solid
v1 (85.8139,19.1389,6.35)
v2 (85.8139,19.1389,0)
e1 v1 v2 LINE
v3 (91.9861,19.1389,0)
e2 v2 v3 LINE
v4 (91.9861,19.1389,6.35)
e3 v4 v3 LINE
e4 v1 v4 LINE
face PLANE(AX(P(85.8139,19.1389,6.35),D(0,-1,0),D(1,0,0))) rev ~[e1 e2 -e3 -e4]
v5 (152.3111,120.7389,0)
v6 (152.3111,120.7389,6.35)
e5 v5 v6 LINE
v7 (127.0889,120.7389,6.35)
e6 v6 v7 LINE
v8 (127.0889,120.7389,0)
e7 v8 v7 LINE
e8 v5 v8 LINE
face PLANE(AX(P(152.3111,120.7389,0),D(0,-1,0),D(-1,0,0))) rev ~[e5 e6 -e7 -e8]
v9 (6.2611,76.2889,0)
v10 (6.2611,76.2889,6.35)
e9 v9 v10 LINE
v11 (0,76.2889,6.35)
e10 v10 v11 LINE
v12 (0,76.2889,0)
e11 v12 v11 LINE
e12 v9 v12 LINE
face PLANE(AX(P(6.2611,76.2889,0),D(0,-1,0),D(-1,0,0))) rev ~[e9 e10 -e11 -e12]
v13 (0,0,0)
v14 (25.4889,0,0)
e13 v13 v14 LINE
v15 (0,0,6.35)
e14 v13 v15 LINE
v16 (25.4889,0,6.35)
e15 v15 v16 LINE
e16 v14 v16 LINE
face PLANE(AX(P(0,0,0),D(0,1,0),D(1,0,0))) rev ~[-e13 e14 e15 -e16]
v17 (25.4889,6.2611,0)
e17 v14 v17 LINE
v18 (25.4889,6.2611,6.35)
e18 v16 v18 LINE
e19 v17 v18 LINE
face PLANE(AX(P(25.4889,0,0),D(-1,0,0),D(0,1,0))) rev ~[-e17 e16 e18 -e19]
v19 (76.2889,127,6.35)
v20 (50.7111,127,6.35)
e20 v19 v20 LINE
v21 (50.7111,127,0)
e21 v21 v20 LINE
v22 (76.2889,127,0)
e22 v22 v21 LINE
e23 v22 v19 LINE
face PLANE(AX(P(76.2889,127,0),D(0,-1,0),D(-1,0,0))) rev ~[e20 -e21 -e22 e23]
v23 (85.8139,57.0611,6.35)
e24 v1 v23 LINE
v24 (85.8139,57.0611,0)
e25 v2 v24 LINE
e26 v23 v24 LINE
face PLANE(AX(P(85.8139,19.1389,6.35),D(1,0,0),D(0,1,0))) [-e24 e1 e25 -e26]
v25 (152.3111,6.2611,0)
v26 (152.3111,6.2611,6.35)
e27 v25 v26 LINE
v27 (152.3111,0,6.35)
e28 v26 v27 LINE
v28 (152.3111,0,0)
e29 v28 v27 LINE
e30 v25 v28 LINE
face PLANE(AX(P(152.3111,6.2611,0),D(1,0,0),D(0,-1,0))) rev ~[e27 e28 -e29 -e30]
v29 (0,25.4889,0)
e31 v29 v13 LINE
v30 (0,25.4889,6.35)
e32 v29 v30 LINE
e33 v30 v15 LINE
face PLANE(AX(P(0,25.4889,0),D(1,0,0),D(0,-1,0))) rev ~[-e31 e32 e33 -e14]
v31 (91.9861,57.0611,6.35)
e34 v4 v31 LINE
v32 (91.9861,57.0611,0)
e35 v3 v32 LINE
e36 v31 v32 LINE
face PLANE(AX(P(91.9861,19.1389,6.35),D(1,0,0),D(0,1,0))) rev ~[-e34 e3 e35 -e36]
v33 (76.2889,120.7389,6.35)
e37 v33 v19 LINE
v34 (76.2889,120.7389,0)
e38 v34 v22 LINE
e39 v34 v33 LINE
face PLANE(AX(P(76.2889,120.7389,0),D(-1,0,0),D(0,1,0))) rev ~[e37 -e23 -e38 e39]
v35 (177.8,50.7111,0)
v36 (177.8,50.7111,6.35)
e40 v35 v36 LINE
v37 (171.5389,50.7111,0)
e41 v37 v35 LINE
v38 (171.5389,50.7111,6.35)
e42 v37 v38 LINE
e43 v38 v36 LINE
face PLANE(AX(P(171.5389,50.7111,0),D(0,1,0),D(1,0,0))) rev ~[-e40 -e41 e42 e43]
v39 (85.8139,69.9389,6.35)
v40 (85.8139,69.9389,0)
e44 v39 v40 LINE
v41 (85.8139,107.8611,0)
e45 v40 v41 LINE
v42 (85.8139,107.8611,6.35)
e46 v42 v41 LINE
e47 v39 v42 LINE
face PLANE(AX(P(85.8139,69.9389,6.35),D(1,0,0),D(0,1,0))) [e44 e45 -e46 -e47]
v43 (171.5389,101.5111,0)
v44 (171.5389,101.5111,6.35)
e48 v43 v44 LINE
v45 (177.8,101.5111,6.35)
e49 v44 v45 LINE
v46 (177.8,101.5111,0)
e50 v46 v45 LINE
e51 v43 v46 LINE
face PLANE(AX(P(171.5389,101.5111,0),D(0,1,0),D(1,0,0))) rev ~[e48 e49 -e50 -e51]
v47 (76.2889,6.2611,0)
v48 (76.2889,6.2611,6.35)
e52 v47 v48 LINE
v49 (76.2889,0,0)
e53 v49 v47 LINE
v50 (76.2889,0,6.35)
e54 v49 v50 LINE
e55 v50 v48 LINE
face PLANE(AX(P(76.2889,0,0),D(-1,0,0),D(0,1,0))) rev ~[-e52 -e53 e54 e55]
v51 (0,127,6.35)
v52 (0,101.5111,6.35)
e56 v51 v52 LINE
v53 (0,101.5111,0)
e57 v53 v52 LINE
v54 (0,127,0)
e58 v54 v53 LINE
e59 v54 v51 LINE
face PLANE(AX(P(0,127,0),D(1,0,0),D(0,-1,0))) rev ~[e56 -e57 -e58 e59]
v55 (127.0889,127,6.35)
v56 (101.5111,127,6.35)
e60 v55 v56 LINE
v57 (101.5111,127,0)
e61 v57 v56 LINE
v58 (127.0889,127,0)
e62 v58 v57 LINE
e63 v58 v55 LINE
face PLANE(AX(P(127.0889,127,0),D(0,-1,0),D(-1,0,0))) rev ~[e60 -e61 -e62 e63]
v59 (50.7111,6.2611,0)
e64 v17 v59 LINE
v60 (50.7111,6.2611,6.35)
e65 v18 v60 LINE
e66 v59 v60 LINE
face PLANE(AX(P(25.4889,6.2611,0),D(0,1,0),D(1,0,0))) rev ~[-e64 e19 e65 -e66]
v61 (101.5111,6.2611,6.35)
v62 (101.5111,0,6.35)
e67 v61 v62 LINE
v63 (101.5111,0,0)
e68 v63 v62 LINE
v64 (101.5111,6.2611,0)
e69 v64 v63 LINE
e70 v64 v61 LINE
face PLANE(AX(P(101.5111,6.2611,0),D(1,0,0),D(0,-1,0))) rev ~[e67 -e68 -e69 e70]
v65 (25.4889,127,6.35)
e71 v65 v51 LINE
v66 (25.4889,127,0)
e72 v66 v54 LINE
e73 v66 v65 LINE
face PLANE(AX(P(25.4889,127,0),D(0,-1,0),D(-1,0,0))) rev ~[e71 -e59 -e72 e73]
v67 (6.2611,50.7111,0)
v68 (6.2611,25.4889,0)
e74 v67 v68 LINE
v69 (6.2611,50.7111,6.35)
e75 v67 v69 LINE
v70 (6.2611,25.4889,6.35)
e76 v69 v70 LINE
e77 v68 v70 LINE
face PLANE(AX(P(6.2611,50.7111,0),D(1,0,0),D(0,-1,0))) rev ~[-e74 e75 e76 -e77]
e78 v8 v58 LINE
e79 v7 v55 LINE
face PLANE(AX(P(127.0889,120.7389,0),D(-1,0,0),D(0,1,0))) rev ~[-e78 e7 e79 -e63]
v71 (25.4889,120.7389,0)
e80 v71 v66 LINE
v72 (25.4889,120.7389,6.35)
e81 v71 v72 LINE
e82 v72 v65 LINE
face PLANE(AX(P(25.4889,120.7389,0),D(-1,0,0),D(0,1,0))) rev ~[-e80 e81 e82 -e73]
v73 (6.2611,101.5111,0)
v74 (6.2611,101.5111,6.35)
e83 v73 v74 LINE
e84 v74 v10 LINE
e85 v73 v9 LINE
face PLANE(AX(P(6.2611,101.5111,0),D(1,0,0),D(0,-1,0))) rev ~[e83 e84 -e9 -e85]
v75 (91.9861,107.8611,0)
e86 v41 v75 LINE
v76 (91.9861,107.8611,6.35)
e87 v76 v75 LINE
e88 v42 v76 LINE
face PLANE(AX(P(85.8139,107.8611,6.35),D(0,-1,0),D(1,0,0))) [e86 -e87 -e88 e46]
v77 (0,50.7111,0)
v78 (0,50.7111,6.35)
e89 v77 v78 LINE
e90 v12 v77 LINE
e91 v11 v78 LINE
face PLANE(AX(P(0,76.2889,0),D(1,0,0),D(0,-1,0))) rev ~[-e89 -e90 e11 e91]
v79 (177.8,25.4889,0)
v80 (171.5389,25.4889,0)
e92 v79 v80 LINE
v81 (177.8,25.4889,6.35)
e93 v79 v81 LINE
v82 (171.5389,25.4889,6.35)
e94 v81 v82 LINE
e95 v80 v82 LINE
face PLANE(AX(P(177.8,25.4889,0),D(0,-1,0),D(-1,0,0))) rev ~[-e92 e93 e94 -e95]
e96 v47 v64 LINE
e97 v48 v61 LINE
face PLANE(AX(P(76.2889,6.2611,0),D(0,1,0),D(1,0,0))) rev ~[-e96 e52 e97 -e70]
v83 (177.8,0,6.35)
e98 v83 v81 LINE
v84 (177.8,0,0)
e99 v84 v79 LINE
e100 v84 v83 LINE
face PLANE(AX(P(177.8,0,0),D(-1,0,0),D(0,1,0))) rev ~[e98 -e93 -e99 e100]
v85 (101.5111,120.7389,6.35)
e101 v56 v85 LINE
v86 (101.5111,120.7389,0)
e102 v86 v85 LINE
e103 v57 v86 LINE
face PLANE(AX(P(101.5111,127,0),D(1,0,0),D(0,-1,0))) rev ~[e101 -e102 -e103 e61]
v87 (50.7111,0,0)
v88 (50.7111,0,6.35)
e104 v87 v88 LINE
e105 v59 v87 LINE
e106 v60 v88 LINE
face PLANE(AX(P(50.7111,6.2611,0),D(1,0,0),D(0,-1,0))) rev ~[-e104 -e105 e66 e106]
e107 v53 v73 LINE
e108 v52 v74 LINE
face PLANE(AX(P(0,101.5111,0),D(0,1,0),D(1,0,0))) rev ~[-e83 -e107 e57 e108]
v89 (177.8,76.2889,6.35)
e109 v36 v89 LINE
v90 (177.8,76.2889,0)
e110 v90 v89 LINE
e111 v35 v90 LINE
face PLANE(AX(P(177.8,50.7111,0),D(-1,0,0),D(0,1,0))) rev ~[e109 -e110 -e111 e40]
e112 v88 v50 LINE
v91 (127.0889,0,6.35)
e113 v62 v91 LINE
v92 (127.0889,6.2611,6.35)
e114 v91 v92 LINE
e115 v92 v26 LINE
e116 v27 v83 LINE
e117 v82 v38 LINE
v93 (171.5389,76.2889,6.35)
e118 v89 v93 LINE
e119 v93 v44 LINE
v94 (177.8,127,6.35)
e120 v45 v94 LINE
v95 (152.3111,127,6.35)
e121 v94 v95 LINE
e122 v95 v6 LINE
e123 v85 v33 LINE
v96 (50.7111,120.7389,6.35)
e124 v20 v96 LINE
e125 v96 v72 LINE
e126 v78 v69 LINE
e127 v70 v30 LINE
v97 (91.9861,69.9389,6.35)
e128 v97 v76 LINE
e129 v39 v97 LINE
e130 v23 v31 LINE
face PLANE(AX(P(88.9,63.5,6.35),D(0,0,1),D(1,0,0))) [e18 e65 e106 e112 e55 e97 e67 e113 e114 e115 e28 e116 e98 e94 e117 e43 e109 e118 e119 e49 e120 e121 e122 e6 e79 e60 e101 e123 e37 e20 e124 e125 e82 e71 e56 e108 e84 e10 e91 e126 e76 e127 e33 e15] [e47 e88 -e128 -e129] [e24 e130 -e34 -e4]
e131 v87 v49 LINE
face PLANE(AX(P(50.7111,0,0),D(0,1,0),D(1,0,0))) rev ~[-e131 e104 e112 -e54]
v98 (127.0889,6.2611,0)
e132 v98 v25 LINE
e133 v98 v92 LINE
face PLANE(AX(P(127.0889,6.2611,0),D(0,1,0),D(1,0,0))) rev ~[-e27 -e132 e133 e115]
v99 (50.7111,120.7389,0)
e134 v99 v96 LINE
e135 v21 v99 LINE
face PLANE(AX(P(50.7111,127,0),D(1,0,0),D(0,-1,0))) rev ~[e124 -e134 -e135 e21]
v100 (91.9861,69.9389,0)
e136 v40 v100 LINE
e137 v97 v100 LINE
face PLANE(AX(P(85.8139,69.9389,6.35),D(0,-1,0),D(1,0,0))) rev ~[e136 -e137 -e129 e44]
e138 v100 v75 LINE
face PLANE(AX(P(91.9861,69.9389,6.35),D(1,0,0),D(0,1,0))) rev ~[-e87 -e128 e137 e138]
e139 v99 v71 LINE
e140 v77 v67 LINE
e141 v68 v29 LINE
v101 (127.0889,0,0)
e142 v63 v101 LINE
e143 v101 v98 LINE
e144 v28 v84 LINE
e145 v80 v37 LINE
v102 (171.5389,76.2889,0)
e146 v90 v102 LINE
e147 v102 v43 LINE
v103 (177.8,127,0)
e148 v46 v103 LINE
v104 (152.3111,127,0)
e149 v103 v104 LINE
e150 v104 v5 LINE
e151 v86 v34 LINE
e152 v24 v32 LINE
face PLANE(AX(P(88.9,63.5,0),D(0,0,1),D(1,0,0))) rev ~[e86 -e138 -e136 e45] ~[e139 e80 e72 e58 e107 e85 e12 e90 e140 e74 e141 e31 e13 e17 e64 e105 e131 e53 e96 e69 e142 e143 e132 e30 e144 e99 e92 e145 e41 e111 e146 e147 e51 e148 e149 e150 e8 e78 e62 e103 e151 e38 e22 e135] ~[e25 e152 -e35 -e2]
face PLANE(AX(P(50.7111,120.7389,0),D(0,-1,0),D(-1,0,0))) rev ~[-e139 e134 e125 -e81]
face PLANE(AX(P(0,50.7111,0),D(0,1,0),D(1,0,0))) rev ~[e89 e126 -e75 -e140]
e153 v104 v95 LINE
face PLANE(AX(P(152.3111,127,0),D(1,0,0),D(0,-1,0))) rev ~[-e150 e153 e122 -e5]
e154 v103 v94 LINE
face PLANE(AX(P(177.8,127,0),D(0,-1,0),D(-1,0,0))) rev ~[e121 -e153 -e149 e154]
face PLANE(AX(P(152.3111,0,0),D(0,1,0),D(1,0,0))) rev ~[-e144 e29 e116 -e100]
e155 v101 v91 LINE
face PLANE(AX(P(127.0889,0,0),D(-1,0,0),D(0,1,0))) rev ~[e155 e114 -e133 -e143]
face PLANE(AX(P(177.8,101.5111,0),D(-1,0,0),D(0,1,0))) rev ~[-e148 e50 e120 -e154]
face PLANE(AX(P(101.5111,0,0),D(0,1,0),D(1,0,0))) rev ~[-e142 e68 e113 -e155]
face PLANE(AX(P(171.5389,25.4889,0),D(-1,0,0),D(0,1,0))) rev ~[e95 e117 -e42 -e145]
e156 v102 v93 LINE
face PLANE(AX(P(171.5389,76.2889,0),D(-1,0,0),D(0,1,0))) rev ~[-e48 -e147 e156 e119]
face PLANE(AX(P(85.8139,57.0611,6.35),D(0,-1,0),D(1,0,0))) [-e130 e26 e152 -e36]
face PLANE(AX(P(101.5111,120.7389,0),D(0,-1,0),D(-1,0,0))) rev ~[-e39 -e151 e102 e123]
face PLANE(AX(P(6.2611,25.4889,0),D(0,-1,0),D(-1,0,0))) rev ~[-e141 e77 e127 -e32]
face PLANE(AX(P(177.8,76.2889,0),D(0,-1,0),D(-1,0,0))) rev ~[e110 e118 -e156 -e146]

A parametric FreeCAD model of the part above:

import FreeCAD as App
import Part
import Sketcher
from FreeCAD import Vector
Q = App.Units.Quantity


def add_polygon(sketch, points):
    """Adds a closed chain of lines whose ends are joined by coincident constraints."""
    first, n = sketch.GeometryCount, len(points)
    for a, b in zip(points, points[1:] + points[:1]):
        sketch.addGeometry(Part.LineSegment(App.Vector(*a, 0), App.Vector(*b, 0)), False)
    for i in range(n):
        sketch.addConstraint(Sketcher.Constraint("Coincident", first + i, 2, first + (i + 1) % n, 1))

doc = App.newDocument("Part")
body = doc.addObject("PartDesign::Body", "Body")

# Sketch on XY plane
sketch1 = doc.addObject("Sketcher::SketchObject", "Sketch")
body.addObject(sketch1)
sketch1.AttachmentSupport = (doc.XY_Plane, [""])
sketch1.MapMode = "FlatFace"
add_polygon(sketch1, [(0, 25.4889), (0, 0), (25.4889, 0), (25.4889, 6.2611), (50.7111, 6.2611), (50.7111, 0), (76.2889, 0), (76.2889, 6.2611), (101.5111, 6.2611), (101.5111, 0), (127.0889, 0), (127.0889, 6.2611), (152.3111, 6.2611), (152.3111, 0), (177.8, 0), (177.8, 25.4889), (171.5389, 25.4889), (171.5389, 50.7111), (177.8, 50.7111), (177.8, 76.2889), (171.5389, 76.2889), (171.5389, 101.5111), (177.8, 101.5111), (177.8, 127), (152.3111, 127), (152.3111, 120.7389), (127.0889, 120.7389), (127.0889, 127), (101.5111, 127), (101.5111, 120.7389), (76.2889, 120.7389), (76.2889, 127), (50.7111, 127), (50.7111, 120.7389), (25.4889, 120.7389), (25.4889, 127), (0, 127), (0, 101.5111), (6.2611, 101.5111), (6.2611, 76.2889), (0, 76.2889), (0, 50.7111), (6.2611, 50.7111), (6.2611, 25.4889)])  # lines 0-43
sketch1.addConstraint([
    Sketcher.Constraint("Vertical", 0),
    Sketcher.Constraint("Horizontal", 1),
    Sketcher.Constraint("Vertical", 2),
    Sketcher.Constraint("Horizontal", 3),
    Sketcher.Constraint("Vertical", 4),
    Sketcher.Constraint("Horizontal", 5),
    Sketcher.Constraint("Vertical", 6),
    Sketcher.Constraint("Horizontal", 7),
    Sketcher.Constraint("Vertical", 8),
    Sketcher.Constraint("Horizontal", 9),
    Sketcher.Constraint("Vertical", 10),
    Sketcher.Constraint("Horizontal", 11),
    Sketcher.Constraint("Vertical", 12),
    Sketcher.Constraint("Horizontal", 13),
    Sketcher.Constraint("Vertical", 14),
    Sketcher.Constraint("Horizontal", 15),
    Sketcher.Constraint("Vertical", 16),
    Sketcher.Constraint("Horizontal", 17),
    Sketcher.Constraint("Vertical", 18),
    Sketcher.Constraint("Horizontal", 19),
    Sketcher.Constraint("Vertical", 20),
    Sketcher.Constraint("Horizontal", 21),
    Sketcher.Constraint("Vertical", 22),
    Sketcher.Constraint("Horizontal", 23),
    Sketcher.Constraint("Vertical", 24),
    Sketcher.Constraint("Horizontal", 25),
    Sketcher.Constraint("Vertical", 26),
    Sketcher.Constraint("Horizontal", 27),
    Sketcher.Constraint("Vertical", 28),
    Sketcher.Constraint("Horizontal", 29),
    Sketcher.Constraint("Vertical", 30),
    Sketcher.Constraint("Horizontal", 31),
    Sketcher.Constraint("Vertical", 32),
    Sketcher.Constraint("Horizontal", 33),
    Sketcher.Constraint("Vertical", 34),
    Sketcher.Constraint("Horizontal", 35),
    Sketcher.Constraint("Vertical", 36),
    Sketcher.Constraint("Horizontal", 37),
    Sketcher.Constraint("Vertical", 38),
    Sketcher.Constraint("Horizontal", 39),
    Sketcher.Constraint("Vertical", 40),
    Sketcher.Constraint("Horizontal", 41),
    Sketcher.Constraint("Vertical", 42),
    Sketcher.Constraint("Horizontal", 43),
    Sketcher.Constraint("Coincident", 0, 2, -1, 1),
    Sketcher.Constraint("PointOnObject", 4, 2, -1),
    Sketcher.Constraint("PointOnObject", 8, 2, -1),
    Sketcher.Constraint("PointOnObject", 12, 2, -1),
    Sketcher.Constraint("PointOnObject", 35, 2, -2),
    Sketcher.Constraint("PointOnObject", 39, 2, -2),
    Sketcher.Constraint("Horizontal", 3, 2, 6, 2),
    Sketcher.Constraint("Horizontal", 7, 2, 10, 2),
    Sketcher.Constraint("Horizontal", 23, 2, 26, 2),
    Sketcher.Constraint("Horizontal", 25, 2, 28, 2),
    Sketcher.Constraint("Horizontal", 27, 2, 30, 2),
    Sketcher.Constraint("Horizontal", 29, 2, 32, 2),
    Sketcher.Constraint("Horizontal", 31, 2, 34, 2),
    Sketcher.Constraint("Horizontal", 21, 2, 36, 2),
    Sketcher.Constraint("Horizontal", 19, 2, 38, 2),
    Sketcher.Constraint("Horizontal", 17, 2, 40, 2),
    Sketcher.Constraint("Horizontal", 15, 2, 42, 2),
    Sketcher.Constraint("Vertical", 14, 2, 17, 2),
    Sketcher.Constraint("Vertical", 16, 2, 19, 2),
    Sketcher.Constraint("Vertical", 18, 2, 21, 2),
    Sketcher.Constraint("Vertical", 12, 2, 23, 2),
    Sketcher.Constraint("Vertical", 10, 2, 25, 2),
    Sketcher.Constraint("Vertical", 8, 2, 27, 2),
    Sketcher.Constraint("Vertical", 6, 2, 29, 2),
    Sketcher.Constraint("Vertical", 4, 2, 31, 2),
    Sketcher.Constraint("Vertical", 2, 2, 33, 2),
    Sketcher.Constraint("Vertical", 38, 2, 41, 2),
    Sketcher.Constraint("Equal", 3, 7),
    Sketcher.Constraint("Equal", 5, 9),
    Sketcher.Constraint("Equal", 7, 11),
    Sketcher.Constraint("Equal", 1, 13),
    Sketcher.Constraint("Equal", 21, 37),
    Sketcher.Constraint("Equal", 35, 0),
    Sketcher.Constraint("Equal", 43, 2),
    Sketcher.Constraint("Equal", 33, 16),
    Sketcher.Constraint("Equal", 31, 18),
    Sketcher.Constraint("Equal", 16, 20),
    Sketcher.Constraint("Equal", 14, 22),
    Sketcher.Constraint("Equal", 12, 24),
    Sketcher.Constraint("DistanceX", -1, 1, 13, 2, Q("7 in")),
    Sketcher.Constraint("DistanceY", -1, 1, 22, 2, Q("5 in")),
    Sketcher.Constraint("DistanceX", 3, 1, 3, 2, Q("0.993 in")),
    Sketcher.Constraint("DistanceX", 10, 2, 15, 2, Q("1.75 in")),
])
pad1 = doc.addObject("PartDesign::Pad", "Pad")
body.addObject(pad1)
pad1.Profile = sketch1
pad1.Length = Q("0.25 in")

# Sketch on XY plane
sketch2 = doc.addObject("Sketcher::SketchObject", "Sketch001")
body.addObject(sketch2)
sketch2.AttachmentSupport = (doc.XY_Plane, [""])
sketch2.MapMode = "FlatFace"
sketch2.AttachmentOffset = App.Placement(Vector(0, 0, 0.25 * 25.4), App.Rotation())
add_polygon(sketch2, [(85.8139, 57.0611), (85.8139, 19.1389), (91.9861, 19.1389), (91.9861, 57.0611)])  # lines 0-3
add_polygon(sketch2, [(85.8139, 107.8611), (85.8139, 69.9389), (91.9861, 69.9389), (91.9861, 107.8611)])  # lines 4-7
sketch2.addConstraint([
    Sketcher.Constraint("Vertical", 0),
    Sketcher.Constraint("Horizontal", 1),
    Sketcher.Constraint("Vertical", 2),
    Sketcher.Constraint("Horizontal", 3),
    Sketcher.Constraint("Vertical", 4),
    Sketcher.Constraint("Horizontal", 5),
    Sketcher.Constraint("Vertical", 6),
    Sketcher.Constraint("Horizontal", 7),
    Sketcher.Constraint("Vertical", 3, 2, 4, 2),
    Sketcher.Constraint("Vertical", 2, 2, 5, 2),
    Sketcher.Constraint("Equal", 2, 4),
    Sketcher.Constraint("DistanceY", 0, 2, 4, 2, Q("2 in")),
    Sketcher.Constraint("DistanceX", 1, 1, 1, 2, Q("0.243 in")),
    Sketcher.Constraint("DistanceY", 0, 2, 0, 1, Q("1.493 in")),
    Sketcher.Constraint("DistanceX", -1, 1, 0, 2, Q("3.3785 in")),
    Sketcher.Constraint("DistanceY", -1, 1, 0, 2, Q("0.7535 in")),
])
pocket1 = doc.addObject("PartDesign::Pocket", "Pocket")
body.addObject(pocket1)
pocket1.Profile = sketch2
pocket1.Type = "ThroughAll"

doc.recompute()
